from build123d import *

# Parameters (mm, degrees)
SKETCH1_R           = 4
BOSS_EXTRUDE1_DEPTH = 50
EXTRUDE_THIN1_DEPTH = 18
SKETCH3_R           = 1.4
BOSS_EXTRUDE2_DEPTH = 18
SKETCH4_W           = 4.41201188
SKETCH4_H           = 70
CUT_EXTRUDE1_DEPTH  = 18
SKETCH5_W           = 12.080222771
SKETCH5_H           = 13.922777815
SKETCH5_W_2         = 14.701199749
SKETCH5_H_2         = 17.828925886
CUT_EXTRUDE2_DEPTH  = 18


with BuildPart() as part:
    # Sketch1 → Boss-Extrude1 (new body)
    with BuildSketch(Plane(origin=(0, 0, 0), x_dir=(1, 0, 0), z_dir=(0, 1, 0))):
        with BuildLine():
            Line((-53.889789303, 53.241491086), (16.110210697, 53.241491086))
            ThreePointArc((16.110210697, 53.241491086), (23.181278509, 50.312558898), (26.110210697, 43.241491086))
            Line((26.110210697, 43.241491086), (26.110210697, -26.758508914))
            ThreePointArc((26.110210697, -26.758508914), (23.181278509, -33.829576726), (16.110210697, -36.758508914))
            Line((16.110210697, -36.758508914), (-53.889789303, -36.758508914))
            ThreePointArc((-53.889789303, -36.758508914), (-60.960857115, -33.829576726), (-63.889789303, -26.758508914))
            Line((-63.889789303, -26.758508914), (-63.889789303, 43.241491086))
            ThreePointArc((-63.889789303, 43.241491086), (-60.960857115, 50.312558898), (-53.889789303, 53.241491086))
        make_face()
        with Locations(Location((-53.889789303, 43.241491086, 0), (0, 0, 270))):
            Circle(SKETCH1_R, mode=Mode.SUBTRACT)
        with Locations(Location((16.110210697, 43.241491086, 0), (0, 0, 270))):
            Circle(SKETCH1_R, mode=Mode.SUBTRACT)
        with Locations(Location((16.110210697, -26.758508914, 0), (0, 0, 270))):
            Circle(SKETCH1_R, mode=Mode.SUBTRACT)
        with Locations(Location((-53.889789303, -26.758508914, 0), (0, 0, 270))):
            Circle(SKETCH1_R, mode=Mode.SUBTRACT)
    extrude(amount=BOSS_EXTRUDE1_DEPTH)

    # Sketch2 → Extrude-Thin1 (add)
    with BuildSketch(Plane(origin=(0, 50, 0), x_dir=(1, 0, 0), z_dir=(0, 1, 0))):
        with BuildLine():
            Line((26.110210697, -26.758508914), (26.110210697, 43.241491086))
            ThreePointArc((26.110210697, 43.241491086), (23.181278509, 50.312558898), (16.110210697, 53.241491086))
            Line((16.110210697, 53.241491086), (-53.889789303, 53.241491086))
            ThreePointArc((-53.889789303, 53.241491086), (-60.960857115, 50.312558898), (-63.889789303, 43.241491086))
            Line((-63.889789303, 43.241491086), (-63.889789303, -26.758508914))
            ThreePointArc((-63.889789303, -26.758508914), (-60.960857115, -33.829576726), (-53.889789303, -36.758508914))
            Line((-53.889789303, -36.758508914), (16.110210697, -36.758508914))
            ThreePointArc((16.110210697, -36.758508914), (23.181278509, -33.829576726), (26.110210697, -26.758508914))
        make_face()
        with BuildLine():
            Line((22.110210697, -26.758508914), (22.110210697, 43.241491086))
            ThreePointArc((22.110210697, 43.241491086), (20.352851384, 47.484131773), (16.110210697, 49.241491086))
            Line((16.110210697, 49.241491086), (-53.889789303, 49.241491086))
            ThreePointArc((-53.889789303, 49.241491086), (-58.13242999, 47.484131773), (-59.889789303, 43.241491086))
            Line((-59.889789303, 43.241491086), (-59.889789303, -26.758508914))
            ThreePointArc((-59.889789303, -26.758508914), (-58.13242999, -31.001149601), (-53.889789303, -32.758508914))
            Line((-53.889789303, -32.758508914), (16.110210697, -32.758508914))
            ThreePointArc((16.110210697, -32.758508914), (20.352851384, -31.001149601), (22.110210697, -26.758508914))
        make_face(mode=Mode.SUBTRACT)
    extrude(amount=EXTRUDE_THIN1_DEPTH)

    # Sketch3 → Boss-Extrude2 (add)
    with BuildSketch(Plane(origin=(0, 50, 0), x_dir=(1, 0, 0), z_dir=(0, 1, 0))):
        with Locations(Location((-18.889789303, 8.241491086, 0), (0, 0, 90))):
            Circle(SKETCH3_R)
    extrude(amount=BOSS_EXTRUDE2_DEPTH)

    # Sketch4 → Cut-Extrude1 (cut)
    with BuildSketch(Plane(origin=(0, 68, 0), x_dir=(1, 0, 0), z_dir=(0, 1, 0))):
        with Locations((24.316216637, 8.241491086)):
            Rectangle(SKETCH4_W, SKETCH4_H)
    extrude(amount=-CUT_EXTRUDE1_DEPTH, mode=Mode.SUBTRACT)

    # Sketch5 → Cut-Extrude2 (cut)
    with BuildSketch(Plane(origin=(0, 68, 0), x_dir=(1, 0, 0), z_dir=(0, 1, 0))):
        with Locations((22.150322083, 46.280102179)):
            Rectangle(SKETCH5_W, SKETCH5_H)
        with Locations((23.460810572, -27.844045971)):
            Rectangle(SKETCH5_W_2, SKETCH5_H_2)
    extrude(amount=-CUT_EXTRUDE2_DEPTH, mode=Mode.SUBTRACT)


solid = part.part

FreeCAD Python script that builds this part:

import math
import FreeCAD as App
import Part
import Sketcher
Q = App.Units.Quantity


def add_polygon(sketch, points):
    """Adds a closed chain of lines whose ends are joined by coincident constraints."""
    first, n = sketch.GeometryCount, len(points)
    for a, b in zip(points, points[1:] + points[:1]):
        sketch.addGeometry(Part.LineSegment(App.Vector(*a, 0), App.Vector(*b, 0)), False)
    for i in range(n):
        sketch.addConstraint(Sketcher.Constraint("Coincident", first + i, 2, first + (i + 1) % n, 1))

doc = App.newDocument("Part")
body = doc.addObject("PartDesign::Body", "Body")

sketch1 = body.newObject("Sketcher::SketchObject", "Sketch")
sketch1.AttachmentSupport = (doc.getObject("XZ_Plane"), [""])
sketch1.MapMode = "FlatFace"
sketch1.addGeometry([
    Part.LineSegment(App.Vector(16.110211, -53.241491, 0), App.Vector(-53.889789, -53.241491, 0)),
    Part.ArcOfCircle(Part.Circle(App.Vector(-53.889789, -43.241491, 0), App.Vector(0, 0, 1), 10), math.radians(180), math.radians(270)),
    Part.LineSegment(App.Vector(-63.889789, -43.241491, 0), App.Vector(-63.889789, 26.758509, 0)),
    Part.ArcOfCircle(Part.Circle(App.Vector(-53.889789, 26.758509, 0), App.Vector(0, 0, 1), 10), math.radians(90), math.radians(180)),
    Part.LineSegment(App.Vector(-53.889789, 36.758509, 0), App.Vector(16.110211, 36.758509, 0)),
    Part.ArcOfCircle(Part.Circle(App.Vector(16.110211, 26.758509, 0), App.Vector(0, 0, 1), 10), math.radians(0), math.radians(90)),
    Part.LineSegment(App.Vector(26.110211, 26.758509, 0), App.Vector(26.110211, -43.241491, 0)),
    Part.ArcOfCircle(Part.Circle(App.Vector(16.110211, -43.241491, 0), App.Vector(0, 0, 1), 10), math.radians(-90), math.radians(0)),
    Part.Circle(App.Vector(16.110211, 26.758509, 0), App.Vector(0, 0, 1), 4),
    Part.Circle(App.Vector(-53.889789, 26.758509, 0), App.Vector(0, 0, 1), 4),
    Part.Circle(App.Vector(16.110211, -43.241491, 0), App.Vector(0, 0, 1), 4),
    Part.Circle(App.Vector(-53.889789, -43.241491, 0), App.Vector(0, 0, 1), 4),
], False)
sketch1.addConstraint([
    Sketcher.Constraint("Tangent", 0, 2, 1, 2),
    Sketcher.Constraint("Tangent", 1, 1, 2, 1),
    Sketcher.Constraint("Tangent", 2, 2, 3, 2),
    Sketcher.Constraint("Tangent", 3, 1, 4, 1),
    Sketcher.Constraint("Tangent", 4, 2, 5, 2),
    Sketcher.Constraint("Tangent", 5, 1, 6, 1),
    Sketcher.Constraint("Tangent", 6, 2, 7, 2),
    Sketcher.Constraint("Tangent", 7, 1, 0, 1),
    Sketcher.Constraint("Horizontal", 0),
    Sketcher.Constraint("Vertical", 2),
    Sketcher.Constraint("Horizontal", 4),
    Sketcher.Constraint("Vertical", 6),
    Sketcher.Constraint("Coincident", 8, 3, 5, 3),
    Sketcher.Constraint("Coincident", 9, 3, 3, 3),
    Sketcher.Constraint("Coincident", 10, 3, 7, 3),
    Sketcher.Constraint("Coincident", 11, 3, 1, 3),
    Sketcher.Constraint("Equal", 1, 3),
    Sketcher.Constraint("Equal", 3, 5),
    Sketcher.Constraint("Equal", 5, 7),
    Sketcher.Constraint("Equal", 8, 9),
    Sketcher.Constraint("Equal", 9, 10),
    Sketcher.Constraint("Equal", 10, 11),
    Sketcher.Constraint("Equal", 4, 2),
    Sketcher.Constraint("Diameter", 8, Q("8 mm")),
    Sketcher.Constraint("Radius", 1, Q("10 mm")),
    Sketcher.Constraint("DistanceX", 0, 2, 0, 1, Q("70 mm")),
    Sketcher.Constraint("DistanceX", 1, 3, -1, 1, Q("53.889789 mm")),
    Sketcher.Constraint("DistanceY", 1, 3, -1, 1, Q("43.241491 mm")),
])
pad1 = body.newObject("PartDesign::Pad", "Pad")
pad1.Profile = sketch1
pad1.Length = 50
pad1.Reversed = True

sketch2 = body.newObject("Sketcher::SketchObject", "Sketch001")
sketch2.AttachmentSupport = (doc.getObject("XZ_Plane"), [""])
sketch2.MapMode = "FlatFace"
sketch2.AttachmentOffset = App.Placement(App.Vector(0, 0, -50), App.Rotation())
sketch2.addGeometry([
    Part.LineSegment(App.Vector(26.110211, 26.758509, 0), App.Vector(26.110211, -43.241491, 0)),
    Part.ArcOfCircle(Part.Circle(App.Vector(16.110211, -43.241491, 0), App.Vector(0, 0, 1), 10), math.radians(-90), math.radians(0)),
    Part.LineSegment(App.Vector(16.110211, -53.241491, 0), App.Vector(-53.889789, -53.241491, 0)),
    Part.ArcOfCircle(Part.Circle(App.Vector(-53.889789, -43.241491, 0), App.Vector(0, 0, 1), 10), math.radians(180), math.radians(270)),
    Part.LineSegment(App.Vector(-63.889789, -43.241491, 0), App.Vector(-63.889789, 26.758509, 0)),
    Part.ArcOfCircle(Part.Circle(App.Vector(-53.889789, 26.758509, 0), App.Vector(0, 0, 1), 10), math.radians(90), math.radians(180)),
    Part.LineSegment(App.Vector(-53.889789, 36.758509, 0), App.Vector(16.110211, 36.758509, 0)),
    Part.ArcOfCircle(Part.Circle(App.Vector(16.110211, 26.758509, 0), App.Vector(0, 0, 1), 10), math.radians(0), math.radians(90)),
    Part.LineSegment(App.Vector(22.110211, -43.241491, 0), App.Vector(22.110211, 26.758509, 0)),
    Part.ArcOfCircle(Part.Circle(App.Vector(16.110211, 26.758509, 0), App.Vector(0, 0, 1), 6), math.radians(0), math.radians(90)),
    Part.LineSegment(App.Vector(16.110211, 32.758509, 0), App.Vector(-53.889789, 32.758509, 0)),
    Part.ArcOfCircle(Part.Circle(App.Vector(-53.889789, 26.758509, 0), App.Vector(0, 0, 1), 6), math.radians(90), math.radians(180)),
    Part.LineSegment(App.Vector(-59.889789, 26.758509, 0), App.Vector(-59.889789, -43.241491, 0)),
    Part.ArcOfCircle(Part.Circle(App.Vector(-53.889789, -43.241491, 0), App.Vector(0, 0, 1), 6), math.radians(180), math.radians(270)),
    Part.LineSegment(App.Vector(-53.889789, -49.241491, 0), App.Vector(16.110211, -49.241491, 0)),
    Part.ArcOfCircle(Part.Circle(App.Vector(16.110211, -43.241491, 0), App.Vector(0, 0, 1), 6), math.radians(-90), math.radians(0)),
], False)
sketch2.addConstraint([
    Sketcher.Constraint("Tangent", 0, 2, 1, 2),
    Sketcher.Constraint("Tangent", 1, 1, 2, 1),
    Sketcher.Constraint("Tangent", 2, 2, 3, 2),
    Sketcher.Constraint("Tangent", 3, 1, 4, 1),
    Sketcher.Constraint("Tangent", 4, 2, 5, 2),
    Sketcher.Constraint("Tangent", 5, 1, 6, 1),
    Sketcher.Constraint("Tangent", 6, 2, 7, 2),
    Sketcher.Constraint("Tangent", 7, 1, 0, 1),
    Sketcher.Constraint("Tangent", 8, 2, 9, 1),
    Sketcher.Constraint("Tangent", 9, 2, 10, 1),
    Sketcher.Constraint("Tangent", 10, 2, 11, 1),
    Sketcher.Constraint("Tangent", 11, 2, 12, 1),
    Sketcher.Constraint("Tangent", 12, 2, 13, 1),
    Sketcher.Constraint("Tangent", 13, 2, 14, 1),
    Sketcher.Constraint("Tangent", 14, 2, 15, 1),
    Sketcher.Constraint("Tangent", 15, 2, 8, 1),
    Sketcher.Constraint("Vertical", 0),
    Sketcher.Constraint("Horizontal", 2),
    Sketcher.Constraint("Vertical", 4),
    Sketcher.Constraint("Horizontal", 6),
    Sketcher.Constraint("Vertical", 8),
    Sketcher.Constraint("Horizontal", 10),
    Sketcher.Constraint("Vertical", 12),
    Sketcher.Constraint("Horizontal", 14),
    Sketcher.Constraint("Coincident", 9, 3, 7, 3),
    Sketcher.Constraint("Coincident", 11, 3, 5, 3),
    Sketcher.Constraint("Coincident", 13, 3, 3, 3),
    Sketcher.Constraint("Equal", 1, 3),
    Sketcher.Constraint("Equal", 3, 5),
    Sketcher.Constraint("Equal", 5, 7),
    Sketcher.Constraint("Equal", 13, 15),
    Sketcher.Constraint("Equal", 14, 0),
    Sketcher.Constraint("Radius", 1, Q("10 mm")),
    Sketcher.Constraint("Radius", 9, Q("6 mm")),
    Sketcher.Constraint("DistanceX", 2, 2, 2, 1, Q("70 mm")),
    Sketcher.Constraint("DistanceX", -1, 1, 1, 3, Q("16.110211 mm")),
    Sketcher.Constraint("DistanceY", 1, 3, -1, 1, Q("43.241491 mm")),
])
pad2 = body.newObject("PartDesign::Pad", "Pad001")
pad2.Profile = sketch2
pad2.Length = 18
pad2.Reversed = True

sketch3 = body.newObject("Sketcher::SketchObject", "Sketch002")
sketch3.AttachmentSupport = (doc.getObject("XZ_Plane"), [""])
sketch3.MapMode = "FlatFace"
sketch3.AttachmentOffset = App.Placement(App.Vector(0, 0, -50), App.Rotation())
sketch3.addGeometry(Part.Circle(App.Vector(-18.889789, -8.241491, 0), App.Vector(0, 0, 1), 1.4), False)
sketch3.addConstraint([
    Sketcher.Constraint("Diameter", 0, Q("2.8 mm")),
    Sketcher.Constraint("DistanceX", 0, 3, -1, 1, Q("18.889789 mm")),
    Sketcher.Constraint("DistanceY", 0, 3, -1, 1, Q("8.241491 mm")),
])
pad3 = body.newObject("PartDesign::Pad", "Pad002")
pad3.Profile = sketch3
pad3.Length = 18
pad3.Reversed = True

sketch4 = body.newObject("Sketcher::SketchObject", "Sketch003")
sketch4.AttachmentSupport = (doc.getObject("XZ_Plane"), [""])
sketch4.MapMode = "FlatFace"
sketch4.AttachmentOffset = App.Placement(App.Vector(0, 0, -68), App.Rotation())
add_polygon(sketch4, [(22.110211, -43.241491), (22.110211, 26.758509), (26.522223, 26.758509), (26.522223, -43.241491)])
sketch4.addConstraint([
    Sketcher.Constraint("Vertical", 0),
    Sketcher.Constraint("Horizontal", 1),
    Sketcher.Constraint("Vertical", 2),
    Sketcher.Constraint("Horizontal", 3),
    Sketcher.Constraint("DistanceY", 0, 1, 0, 2, Q("70 mm")),
    Sketcher.Constraint("DistanceX", 1, 1, 1, 2, Q("4.412012 mm")),
    Sketcher.Constraint("DistanceX", -1, 1, 0, 2, Q("22.110211 mm")),
    Sketcher.Constraint("DistanceY", -1, 1, 0, 2, Q("26.758509 mm")),
])
pocket1 = body.newObject("PartDesign::Pocket", "Pocket")
pocket1.Profile = sketch4
pocket1.Length = 18
pocket1.Reversed = True

sketch5 = body.newObject("Sketcher::SketchObject", "Sketch004")
sketch5.AttachmentSupport = (doc.getObject("XZ_Plane"), [""])
sketch5.MapMode = "FlatFace"
sketch5.AttachmentOffset = App.Placement(App.Vector(0, 0, -68), App.Rotation())
add_polygon(sketch5, [(16.110211, -53.241491), (16.110211, -39.318713), (28.190433, -39.318713), (28.190433, -53.241491)])
add_polygon(sketch5, [(16.110211, 18.929583), (16.110211, 36.758509), (30.81141, 36.758509), (30.81141, 18.929583)])
sketch5.addConstraint([
    Sketcher.Constraint("Vertical", 0),
    Sketcher.Constraint("Horizontal", 1),
    Sketcher.Constraint("Vertical", 2),
    Sketcher.Constraint("Horizontal", 3),
    Sketcher.Constraint("Vertical", 4),
    Sketcher.Constraint("Horizontal", 5),
    Sketcher.Constraint("Vertical", 6),
    Sketcher.Constraint("Horizontal", 7),
    Sketcher.Constraint("Vertical", 3, 2, 4, 2),
    Sketcher.Constraint("DistanceY", 3, 2, 4, 2, Q("90 mm")),
    Sketcher.Constraint("DistanceX", 5, 1, 5, 2, Q("14.7012 mm")),
    Sketcher.Constraint("DistanceX", 1, 1, 1, 2, Q("12.080223 mm")),
    Sketcher.Constraint("DistanceY", 0, 1, 0, 2, Q("13.922778 mm")),
    Sketcher.Constraint("DistanceY", 4, 1, 4, 2, Q("17.828926 mm")),
    Sketcher.Constraint("DistanceX", -1, 1, 0, 2, Q("16.110211 mm")),
    Sketcher.Constraint("DistanceY", 2, 2, -1, 1, Q("53.241491 mm")),
])
pocket2 = body.newObject("PartDesign::Pocket", "Pocket001")
pocket2.Profile = sketch5
pocket2.Length = 18
pocket2.Reversed = True

doc.recompute()
